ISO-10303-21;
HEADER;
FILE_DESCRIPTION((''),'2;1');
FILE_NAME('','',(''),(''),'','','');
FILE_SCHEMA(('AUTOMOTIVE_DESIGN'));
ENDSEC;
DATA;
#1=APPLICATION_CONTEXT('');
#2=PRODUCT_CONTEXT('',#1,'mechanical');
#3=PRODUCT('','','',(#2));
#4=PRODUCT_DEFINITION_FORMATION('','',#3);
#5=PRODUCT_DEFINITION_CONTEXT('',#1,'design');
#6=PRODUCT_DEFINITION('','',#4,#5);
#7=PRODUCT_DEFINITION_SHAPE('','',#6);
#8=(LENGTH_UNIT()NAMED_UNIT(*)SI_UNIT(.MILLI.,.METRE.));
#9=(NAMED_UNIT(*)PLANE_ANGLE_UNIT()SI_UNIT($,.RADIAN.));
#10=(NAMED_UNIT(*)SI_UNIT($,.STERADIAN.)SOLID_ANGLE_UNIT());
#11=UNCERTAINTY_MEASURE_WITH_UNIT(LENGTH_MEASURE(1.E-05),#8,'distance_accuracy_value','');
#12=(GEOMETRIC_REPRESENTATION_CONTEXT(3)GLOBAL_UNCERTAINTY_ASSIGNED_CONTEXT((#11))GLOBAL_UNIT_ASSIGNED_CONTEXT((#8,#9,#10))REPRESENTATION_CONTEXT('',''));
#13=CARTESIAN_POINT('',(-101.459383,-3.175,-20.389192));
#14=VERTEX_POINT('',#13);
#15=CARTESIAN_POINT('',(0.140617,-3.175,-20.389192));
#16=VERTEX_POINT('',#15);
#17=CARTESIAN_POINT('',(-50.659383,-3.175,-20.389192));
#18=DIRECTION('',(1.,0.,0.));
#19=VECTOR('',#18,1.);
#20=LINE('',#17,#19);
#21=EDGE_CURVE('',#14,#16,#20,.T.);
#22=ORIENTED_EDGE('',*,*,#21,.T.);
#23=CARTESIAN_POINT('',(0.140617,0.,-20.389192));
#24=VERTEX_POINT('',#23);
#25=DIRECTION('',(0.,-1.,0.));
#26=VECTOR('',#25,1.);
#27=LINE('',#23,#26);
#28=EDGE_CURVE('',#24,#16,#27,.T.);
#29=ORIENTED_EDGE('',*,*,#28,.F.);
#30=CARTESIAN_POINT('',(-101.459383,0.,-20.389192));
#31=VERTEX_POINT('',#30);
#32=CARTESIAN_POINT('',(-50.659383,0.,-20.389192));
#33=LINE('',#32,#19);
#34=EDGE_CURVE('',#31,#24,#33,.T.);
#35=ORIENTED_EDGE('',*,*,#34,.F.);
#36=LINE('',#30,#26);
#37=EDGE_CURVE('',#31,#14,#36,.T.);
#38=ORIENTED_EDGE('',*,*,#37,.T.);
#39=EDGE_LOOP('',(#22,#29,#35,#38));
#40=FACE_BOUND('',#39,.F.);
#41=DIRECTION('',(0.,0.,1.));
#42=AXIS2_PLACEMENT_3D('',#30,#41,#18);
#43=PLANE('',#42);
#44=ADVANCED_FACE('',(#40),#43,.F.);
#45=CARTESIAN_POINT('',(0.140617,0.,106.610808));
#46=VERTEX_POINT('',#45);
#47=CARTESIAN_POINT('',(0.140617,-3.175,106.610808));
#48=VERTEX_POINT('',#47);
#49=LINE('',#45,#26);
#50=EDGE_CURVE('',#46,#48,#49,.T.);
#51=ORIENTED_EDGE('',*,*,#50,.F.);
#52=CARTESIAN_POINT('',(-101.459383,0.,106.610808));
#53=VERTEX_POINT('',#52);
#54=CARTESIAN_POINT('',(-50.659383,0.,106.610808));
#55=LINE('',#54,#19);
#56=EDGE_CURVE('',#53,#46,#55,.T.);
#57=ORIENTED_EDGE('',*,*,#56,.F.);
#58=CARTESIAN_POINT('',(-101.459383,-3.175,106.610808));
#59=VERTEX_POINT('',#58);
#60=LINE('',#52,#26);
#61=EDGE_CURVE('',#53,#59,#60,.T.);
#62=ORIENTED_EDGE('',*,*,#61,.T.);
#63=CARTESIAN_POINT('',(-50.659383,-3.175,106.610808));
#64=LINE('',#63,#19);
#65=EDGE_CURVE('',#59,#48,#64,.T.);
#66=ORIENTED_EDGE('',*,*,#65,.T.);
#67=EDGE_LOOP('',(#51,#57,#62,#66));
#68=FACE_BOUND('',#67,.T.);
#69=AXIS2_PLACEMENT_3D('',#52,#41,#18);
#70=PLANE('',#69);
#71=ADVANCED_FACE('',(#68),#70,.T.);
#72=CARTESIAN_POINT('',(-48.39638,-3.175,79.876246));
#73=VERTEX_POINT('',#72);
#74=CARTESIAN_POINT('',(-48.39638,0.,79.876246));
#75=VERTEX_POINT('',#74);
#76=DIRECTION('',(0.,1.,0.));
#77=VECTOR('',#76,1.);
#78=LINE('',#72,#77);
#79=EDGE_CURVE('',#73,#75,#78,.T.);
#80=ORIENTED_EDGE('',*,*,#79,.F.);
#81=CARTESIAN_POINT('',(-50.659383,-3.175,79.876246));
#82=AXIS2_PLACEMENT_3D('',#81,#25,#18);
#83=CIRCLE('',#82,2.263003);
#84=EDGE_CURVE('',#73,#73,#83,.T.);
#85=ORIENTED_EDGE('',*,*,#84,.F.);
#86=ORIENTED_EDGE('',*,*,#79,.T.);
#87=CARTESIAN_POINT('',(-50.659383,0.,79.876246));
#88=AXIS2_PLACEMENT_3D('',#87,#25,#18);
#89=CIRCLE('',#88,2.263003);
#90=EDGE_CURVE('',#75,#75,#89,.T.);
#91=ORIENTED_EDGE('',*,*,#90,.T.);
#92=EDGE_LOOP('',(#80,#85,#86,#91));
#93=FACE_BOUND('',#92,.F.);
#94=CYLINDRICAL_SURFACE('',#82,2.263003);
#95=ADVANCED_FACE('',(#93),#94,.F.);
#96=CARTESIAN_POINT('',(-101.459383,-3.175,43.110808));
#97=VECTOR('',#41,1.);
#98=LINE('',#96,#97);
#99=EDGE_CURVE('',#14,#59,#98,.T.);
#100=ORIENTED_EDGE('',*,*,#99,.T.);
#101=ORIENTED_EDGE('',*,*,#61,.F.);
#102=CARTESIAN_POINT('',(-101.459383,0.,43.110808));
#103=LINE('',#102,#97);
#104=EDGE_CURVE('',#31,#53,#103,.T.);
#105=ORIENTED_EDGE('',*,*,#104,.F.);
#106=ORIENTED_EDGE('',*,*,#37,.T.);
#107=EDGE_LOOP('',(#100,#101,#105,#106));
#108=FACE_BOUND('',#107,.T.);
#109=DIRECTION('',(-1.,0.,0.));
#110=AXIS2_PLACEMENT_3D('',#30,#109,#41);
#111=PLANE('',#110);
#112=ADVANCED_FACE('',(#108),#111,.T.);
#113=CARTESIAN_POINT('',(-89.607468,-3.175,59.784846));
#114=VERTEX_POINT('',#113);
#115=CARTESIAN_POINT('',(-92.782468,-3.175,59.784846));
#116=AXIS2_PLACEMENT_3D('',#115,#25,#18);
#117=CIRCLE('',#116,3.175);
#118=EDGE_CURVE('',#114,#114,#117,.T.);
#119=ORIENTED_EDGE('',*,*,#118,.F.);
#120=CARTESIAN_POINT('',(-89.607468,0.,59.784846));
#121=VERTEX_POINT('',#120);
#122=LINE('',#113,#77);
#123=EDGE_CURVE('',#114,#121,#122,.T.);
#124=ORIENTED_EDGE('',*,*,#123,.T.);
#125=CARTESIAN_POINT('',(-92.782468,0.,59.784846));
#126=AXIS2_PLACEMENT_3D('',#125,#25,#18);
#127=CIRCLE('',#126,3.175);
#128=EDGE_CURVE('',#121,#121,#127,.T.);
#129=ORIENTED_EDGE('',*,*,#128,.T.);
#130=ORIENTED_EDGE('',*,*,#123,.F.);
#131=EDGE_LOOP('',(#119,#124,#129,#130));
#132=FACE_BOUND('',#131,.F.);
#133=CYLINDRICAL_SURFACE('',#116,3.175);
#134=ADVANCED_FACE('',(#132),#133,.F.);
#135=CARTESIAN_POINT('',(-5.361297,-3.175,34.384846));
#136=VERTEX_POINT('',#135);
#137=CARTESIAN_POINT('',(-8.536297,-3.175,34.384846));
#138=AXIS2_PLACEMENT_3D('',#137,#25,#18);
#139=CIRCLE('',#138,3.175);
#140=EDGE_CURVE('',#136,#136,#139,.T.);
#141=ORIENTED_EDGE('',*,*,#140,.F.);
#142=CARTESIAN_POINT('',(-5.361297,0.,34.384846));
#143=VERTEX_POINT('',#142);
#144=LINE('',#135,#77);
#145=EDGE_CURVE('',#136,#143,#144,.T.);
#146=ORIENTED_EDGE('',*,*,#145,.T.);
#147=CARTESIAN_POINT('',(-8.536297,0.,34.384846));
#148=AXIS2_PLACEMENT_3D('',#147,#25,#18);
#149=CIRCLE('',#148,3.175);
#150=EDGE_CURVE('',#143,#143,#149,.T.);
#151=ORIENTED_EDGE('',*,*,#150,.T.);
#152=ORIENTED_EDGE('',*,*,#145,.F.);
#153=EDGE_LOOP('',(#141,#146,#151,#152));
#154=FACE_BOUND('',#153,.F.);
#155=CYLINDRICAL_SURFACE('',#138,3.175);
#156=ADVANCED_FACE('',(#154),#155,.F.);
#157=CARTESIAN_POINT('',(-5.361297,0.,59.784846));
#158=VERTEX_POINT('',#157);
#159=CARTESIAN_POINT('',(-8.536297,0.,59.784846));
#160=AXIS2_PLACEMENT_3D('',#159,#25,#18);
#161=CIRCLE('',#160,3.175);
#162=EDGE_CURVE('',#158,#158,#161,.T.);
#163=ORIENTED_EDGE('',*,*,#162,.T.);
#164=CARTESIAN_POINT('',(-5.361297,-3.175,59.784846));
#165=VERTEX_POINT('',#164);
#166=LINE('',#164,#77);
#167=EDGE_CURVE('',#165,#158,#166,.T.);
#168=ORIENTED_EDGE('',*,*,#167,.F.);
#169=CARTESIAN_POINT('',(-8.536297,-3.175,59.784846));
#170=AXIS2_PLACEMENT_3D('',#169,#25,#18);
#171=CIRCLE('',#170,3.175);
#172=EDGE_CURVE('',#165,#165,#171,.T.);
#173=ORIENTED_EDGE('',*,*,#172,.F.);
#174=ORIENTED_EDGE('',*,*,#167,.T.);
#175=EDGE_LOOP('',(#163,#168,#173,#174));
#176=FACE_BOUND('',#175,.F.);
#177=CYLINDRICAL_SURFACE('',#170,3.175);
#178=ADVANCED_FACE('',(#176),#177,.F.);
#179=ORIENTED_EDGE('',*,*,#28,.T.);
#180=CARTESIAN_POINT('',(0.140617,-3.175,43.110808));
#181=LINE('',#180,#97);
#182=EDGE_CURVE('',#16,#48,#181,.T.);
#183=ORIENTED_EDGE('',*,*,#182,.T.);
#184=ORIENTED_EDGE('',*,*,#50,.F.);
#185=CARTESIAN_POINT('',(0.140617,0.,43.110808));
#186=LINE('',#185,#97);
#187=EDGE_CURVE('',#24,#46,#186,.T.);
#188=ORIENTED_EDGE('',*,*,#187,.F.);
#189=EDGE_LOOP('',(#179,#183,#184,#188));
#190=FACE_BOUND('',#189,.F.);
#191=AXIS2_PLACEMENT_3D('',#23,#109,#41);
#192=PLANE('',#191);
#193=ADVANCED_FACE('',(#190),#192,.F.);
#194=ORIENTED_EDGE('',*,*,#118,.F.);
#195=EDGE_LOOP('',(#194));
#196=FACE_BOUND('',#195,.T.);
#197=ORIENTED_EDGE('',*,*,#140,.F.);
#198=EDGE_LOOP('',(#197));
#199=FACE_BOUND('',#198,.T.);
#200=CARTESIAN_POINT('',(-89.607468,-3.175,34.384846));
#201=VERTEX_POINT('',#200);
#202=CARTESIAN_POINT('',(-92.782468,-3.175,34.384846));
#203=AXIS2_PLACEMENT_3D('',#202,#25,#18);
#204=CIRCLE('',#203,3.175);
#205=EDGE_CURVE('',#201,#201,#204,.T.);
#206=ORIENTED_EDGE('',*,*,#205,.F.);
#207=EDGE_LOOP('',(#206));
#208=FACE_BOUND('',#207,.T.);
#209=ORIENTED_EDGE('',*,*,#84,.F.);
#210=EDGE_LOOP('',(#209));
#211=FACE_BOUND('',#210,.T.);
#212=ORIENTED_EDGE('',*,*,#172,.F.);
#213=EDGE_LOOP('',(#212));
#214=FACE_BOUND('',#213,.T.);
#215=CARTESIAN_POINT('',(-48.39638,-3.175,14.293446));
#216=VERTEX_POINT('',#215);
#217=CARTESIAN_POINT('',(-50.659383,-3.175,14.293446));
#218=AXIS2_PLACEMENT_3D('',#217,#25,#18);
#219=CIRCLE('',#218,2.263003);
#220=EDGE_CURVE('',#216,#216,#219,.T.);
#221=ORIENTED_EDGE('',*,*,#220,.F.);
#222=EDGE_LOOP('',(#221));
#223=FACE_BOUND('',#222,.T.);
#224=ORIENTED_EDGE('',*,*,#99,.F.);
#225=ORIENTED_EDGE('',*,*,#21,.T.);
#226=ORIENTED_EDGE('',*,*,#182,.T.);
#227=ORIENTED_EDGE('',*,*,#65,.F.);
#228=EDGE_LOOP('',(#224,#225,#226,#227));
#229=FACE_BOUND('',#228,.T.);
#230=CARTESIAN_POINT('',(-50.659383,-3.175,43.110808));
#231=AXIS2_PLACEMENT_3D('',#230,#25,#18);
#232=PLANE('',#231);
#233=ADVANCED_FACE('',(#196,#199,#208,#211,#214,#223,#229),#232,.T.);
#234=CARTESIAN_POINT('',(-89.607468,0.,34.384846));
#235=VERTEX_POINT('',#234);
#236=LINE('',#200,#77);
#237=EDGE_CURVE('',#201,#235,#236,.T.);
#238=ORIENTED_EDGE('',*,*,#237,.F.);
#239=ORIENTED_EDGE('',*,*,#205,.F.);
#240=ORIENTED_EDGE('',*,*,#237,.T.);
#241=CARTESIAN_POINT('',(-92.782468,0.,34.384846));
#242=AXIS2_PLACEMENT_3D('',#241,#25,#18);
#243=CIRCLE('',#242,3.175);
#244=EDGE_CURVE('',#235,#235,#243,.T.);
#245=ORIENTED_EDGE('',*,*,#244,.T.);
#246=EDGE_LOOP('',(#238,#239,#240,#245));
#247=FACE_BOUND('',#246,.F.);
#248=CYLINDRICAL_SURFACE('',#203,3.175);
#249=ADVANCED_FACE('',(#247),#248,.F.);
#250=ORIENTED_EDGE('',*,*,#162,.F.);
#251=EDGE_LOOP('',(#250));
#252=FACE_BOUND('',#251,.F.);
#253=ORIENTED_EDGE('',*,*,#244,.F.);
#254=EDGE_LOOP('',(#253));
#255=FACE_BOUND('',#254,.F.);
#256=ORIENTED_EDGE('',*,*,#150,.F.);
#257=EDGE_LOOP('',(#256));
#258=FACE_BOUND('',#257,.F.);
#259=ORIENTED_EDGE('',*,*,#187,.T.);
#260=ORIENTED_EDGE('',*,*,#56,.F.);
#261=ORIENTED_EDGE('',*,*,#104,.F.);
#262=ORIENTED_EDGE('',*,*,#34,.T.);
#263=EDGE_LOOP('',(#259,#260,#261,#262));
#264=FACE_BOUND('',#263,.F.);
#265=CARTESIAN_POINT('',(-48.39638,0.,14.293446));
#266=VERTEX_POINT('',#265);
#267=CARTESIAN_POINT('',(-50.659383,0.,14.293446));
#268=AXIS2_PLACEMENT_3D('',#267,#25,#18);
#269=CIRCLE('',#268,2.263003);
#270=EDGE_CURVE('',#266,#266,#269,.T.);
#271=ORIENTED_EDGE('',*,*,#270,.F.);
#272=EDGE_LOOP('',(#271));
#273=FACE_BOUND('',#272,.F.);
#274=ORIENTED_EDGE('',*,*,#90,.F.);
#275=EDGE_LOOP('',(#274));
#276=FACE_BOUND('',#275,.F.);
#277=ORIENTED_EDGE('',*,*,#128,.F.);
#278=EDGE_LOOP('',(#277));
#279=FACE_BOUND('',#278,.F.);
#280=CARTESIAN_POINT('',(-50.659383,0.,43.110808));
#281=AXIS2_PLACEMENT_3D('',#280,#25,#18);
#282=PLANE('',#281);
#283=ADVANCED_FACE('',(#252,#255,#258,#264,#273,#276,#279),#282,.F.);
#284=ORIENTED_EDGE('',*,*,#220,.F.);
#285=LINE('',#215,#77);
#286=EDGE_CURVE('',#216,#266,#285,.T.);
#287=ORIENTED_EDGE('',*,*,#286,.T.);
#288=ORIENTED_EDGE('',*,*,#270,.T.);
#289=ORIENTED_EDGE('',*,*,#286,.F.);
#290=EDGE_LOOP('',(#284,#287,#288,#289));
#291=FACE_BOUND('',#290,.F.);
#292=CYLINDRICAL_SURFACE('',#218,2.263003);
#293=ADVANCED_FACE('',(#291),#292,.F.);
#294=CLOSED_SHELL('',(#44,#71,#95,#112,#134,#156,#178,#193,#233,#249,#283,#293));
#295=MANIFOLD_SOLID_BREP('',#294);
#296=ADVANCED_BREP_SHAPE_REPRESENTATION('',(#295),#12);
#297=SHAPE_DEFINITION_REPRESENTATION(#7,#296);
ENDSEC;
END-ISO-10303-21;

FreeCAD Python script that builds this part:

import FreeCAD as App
import Part
import Sketcher
from FreeCAD import Vector
Q = App.Units.Quantity


def add_polygon(sketch, points):
    """Adds a closed chain of lines whose ends are joined by coincident constraints."""
    first, n = sketch.GeometryCount, len(points)
    for a, b in zip(points, points[1:] + points[:1]):
        sketch.addGeometry(Part.LineSegment(App.Vector(*a, 0), App.Vector(*b, 0)), False)
    for i in range(n):
        sketch.addConstraint(Sketcher.Constraint("Coincident", first + i, 2, first + (i + 1) % n, 1))

doc = App.newDocument("Part")
params = doc.addObject("Spreadsheet::Sheet", "Params")
for row, (alias, value) in enumerate([
    ("sketch1_width", "4 in"),
    ("sketch1_height", "5 in"),
    ("pad1_length", "0.125 in"),
    ("sketch3_diameter", "0.25 in"),
], start=1):
    params.set(f"A{row}", alias)
    params.set(f"B{row}", "=" + value)
    params.setAlias(f"B{row}", alias)

body = doc.addObject("PartDesign::Body", "Body")

# Sketch on XZ plane
sketch1 = doc.addObject("Sketcher::SketchObject", "Sketch")
body.addObject(sketch1)
sketch1.AttachmentSupport = (doc.XZ_Plane, [""])
sketch1.MapMode = "FlatFace"
add_polygon(sketch1, [(-101, 107), (-101, -20), (0, -20), (0, 107)])  # lines 0-3
sketch1.addConstraint([
    Sketcher.Constraint("Vertical", 0),
    Sketcher.Constraint("Horizontal", 1),
    Sketcher.Constraint("Vertical", 2),
    Sketcher.Constraint("Horizontal", 3),
    Sketcher.Constraint("DistanceX", 1, 1, 1, 2, Q("4 in")),
    Sketcher.Constraint("DistanceY", 0, 2, 0, 1, Q("5 in")),
    Sketcher.Constraint("DistanceY", -1, 1, 2, 2, 106.610808),
    Sketcher.Constraint("DistanceX", 0, 2, -1, 1, 101.459383),
])
sketch1.setExpression("Constraints[8]", "Params.sketch1_width")
sketch1.setExpression("Constraints[9]", "Params.sketch1_height")
pad1 = doc.addObject("PartDesign::Pad", "Pad")
body.addObject(pad1)
pad1.Profile = sketch1
pad1.setExpression("Length", "Params.pad1_length")

# Sketch on XZ plane
sketch2 = doc.addObject("Sketcher::SketchObject", "Sketch001")
body.addObject(sketch2)
sketch2.AttachmentSupport = (doc.XZ_Plane, [""])
sketch2.MapMode = "FlatFace"
sketch2.AttachmentOffset = App.Placement(Vector(0, 0, 0.125 * 25.4), App.Rotation())
sketch2.addGeometry([
    Part.Circle(Vector(-50.7, 79.9, 0), Vector(0, 0, 1), 2.3),
    Part.Circle(Vector(-50.7, 14.3, 0), Vector(0, 0, 1), 2.3),
], False)
sketch2.addConstraint([
    Sketcher.Constraint("Equal", 0, 1),
    Sketcher.Constraint("Vertical", 0, 3, 1, 3),
    Sketcher.Constraint("DistanceY", 1, 3, 0, 3, Q("2.582 in")),
    Sketcher.Constraint("Diameter", 0, 4.526006),
    Sketcher.Constraint("DistanceX", 0, 3, -1, 1, 50.659383),
    Sketcher.Constraint("DistanceY", -1, 1, 0, 3, 79.876246),
])
pocket1 = doc.addObject("PartDesign::Pocket", "Pocket")
body.addObject(pocket1)
pocket1.Profile = sketch2
pocket1.Type = "ThroughAll"

# Sketch on XZ plane
sketch3 = doc.addObject("Sketcher::SketchObject", "Sketch002")
body.addObject(sketch3)
sketch3.AttachmentSupport = (doc.XZ_Plane, [""])
sketch3.MapMode = "FlatFace"
sketch3.AttachmentOffset = App.Placement(Vector(0, 0, 0.125 * 25.4), App.Rotation())
sketch3.addGeometry([
    Part.Circle(Vector(-92.8, 59.8, 0), Vector(0, 0, 1), 3.2),
    Part.Circle(Vector(-92.8, 34.4, 0), Vector(0, 0, 1), 3.2),
    Part.Circle(Vector(-8.5, 34.4, 0), Vector(0, 0, 1), 3.2),
    Part.Circle(Vector(-8.5, 59.8, 0), Vector(0, 0, 1), 3.2),
], False)
sketch3.addConstraint([
    Sketcher.Constraint("Equal", 0, 1),
    Sketcher.Constraint("Equal", 1, 2),
    Sketcher.Constraint("Equal", 2, 3),
    Sketcher.Constraint("Horizontal", 1, 3, 2, 3),
    Sketcher.Constraint("Horizontal", 0, 3, 3, 3),
    Sketcher.Constraint("Vertical", 0, 3, 1, 3),
    Sketcher.Constraint("Vertical", 2, 3, 3, 3),
    Sketcher.Constraint("Diameter", 0, Q("0.25 in")),
    Sketcher.Constraint("DistanceY", 1, 3, 0, 3, Q("1 in")),
    Sketcher.Constraint("DistanceX", 1, 3, 2, 3, 84.246171),
    Sketcher.Constraint("DistanceX", 0, 3, -1, 1, 92.782468),
    Sketcher.Constraint("DistanceY", -1, 1, 0, 3, 59.784846),
])
sketch3.setExpression("Constraints[7]", "Params.sketch3_diameter")
pocket2 = doc.addObject("PartDesign::Pocket", "Pocket001")
body.addObject(pocket2)
pocket2.Profile = sketch3
pocket2.Type = "ThroughAll"

doc.recompute()
